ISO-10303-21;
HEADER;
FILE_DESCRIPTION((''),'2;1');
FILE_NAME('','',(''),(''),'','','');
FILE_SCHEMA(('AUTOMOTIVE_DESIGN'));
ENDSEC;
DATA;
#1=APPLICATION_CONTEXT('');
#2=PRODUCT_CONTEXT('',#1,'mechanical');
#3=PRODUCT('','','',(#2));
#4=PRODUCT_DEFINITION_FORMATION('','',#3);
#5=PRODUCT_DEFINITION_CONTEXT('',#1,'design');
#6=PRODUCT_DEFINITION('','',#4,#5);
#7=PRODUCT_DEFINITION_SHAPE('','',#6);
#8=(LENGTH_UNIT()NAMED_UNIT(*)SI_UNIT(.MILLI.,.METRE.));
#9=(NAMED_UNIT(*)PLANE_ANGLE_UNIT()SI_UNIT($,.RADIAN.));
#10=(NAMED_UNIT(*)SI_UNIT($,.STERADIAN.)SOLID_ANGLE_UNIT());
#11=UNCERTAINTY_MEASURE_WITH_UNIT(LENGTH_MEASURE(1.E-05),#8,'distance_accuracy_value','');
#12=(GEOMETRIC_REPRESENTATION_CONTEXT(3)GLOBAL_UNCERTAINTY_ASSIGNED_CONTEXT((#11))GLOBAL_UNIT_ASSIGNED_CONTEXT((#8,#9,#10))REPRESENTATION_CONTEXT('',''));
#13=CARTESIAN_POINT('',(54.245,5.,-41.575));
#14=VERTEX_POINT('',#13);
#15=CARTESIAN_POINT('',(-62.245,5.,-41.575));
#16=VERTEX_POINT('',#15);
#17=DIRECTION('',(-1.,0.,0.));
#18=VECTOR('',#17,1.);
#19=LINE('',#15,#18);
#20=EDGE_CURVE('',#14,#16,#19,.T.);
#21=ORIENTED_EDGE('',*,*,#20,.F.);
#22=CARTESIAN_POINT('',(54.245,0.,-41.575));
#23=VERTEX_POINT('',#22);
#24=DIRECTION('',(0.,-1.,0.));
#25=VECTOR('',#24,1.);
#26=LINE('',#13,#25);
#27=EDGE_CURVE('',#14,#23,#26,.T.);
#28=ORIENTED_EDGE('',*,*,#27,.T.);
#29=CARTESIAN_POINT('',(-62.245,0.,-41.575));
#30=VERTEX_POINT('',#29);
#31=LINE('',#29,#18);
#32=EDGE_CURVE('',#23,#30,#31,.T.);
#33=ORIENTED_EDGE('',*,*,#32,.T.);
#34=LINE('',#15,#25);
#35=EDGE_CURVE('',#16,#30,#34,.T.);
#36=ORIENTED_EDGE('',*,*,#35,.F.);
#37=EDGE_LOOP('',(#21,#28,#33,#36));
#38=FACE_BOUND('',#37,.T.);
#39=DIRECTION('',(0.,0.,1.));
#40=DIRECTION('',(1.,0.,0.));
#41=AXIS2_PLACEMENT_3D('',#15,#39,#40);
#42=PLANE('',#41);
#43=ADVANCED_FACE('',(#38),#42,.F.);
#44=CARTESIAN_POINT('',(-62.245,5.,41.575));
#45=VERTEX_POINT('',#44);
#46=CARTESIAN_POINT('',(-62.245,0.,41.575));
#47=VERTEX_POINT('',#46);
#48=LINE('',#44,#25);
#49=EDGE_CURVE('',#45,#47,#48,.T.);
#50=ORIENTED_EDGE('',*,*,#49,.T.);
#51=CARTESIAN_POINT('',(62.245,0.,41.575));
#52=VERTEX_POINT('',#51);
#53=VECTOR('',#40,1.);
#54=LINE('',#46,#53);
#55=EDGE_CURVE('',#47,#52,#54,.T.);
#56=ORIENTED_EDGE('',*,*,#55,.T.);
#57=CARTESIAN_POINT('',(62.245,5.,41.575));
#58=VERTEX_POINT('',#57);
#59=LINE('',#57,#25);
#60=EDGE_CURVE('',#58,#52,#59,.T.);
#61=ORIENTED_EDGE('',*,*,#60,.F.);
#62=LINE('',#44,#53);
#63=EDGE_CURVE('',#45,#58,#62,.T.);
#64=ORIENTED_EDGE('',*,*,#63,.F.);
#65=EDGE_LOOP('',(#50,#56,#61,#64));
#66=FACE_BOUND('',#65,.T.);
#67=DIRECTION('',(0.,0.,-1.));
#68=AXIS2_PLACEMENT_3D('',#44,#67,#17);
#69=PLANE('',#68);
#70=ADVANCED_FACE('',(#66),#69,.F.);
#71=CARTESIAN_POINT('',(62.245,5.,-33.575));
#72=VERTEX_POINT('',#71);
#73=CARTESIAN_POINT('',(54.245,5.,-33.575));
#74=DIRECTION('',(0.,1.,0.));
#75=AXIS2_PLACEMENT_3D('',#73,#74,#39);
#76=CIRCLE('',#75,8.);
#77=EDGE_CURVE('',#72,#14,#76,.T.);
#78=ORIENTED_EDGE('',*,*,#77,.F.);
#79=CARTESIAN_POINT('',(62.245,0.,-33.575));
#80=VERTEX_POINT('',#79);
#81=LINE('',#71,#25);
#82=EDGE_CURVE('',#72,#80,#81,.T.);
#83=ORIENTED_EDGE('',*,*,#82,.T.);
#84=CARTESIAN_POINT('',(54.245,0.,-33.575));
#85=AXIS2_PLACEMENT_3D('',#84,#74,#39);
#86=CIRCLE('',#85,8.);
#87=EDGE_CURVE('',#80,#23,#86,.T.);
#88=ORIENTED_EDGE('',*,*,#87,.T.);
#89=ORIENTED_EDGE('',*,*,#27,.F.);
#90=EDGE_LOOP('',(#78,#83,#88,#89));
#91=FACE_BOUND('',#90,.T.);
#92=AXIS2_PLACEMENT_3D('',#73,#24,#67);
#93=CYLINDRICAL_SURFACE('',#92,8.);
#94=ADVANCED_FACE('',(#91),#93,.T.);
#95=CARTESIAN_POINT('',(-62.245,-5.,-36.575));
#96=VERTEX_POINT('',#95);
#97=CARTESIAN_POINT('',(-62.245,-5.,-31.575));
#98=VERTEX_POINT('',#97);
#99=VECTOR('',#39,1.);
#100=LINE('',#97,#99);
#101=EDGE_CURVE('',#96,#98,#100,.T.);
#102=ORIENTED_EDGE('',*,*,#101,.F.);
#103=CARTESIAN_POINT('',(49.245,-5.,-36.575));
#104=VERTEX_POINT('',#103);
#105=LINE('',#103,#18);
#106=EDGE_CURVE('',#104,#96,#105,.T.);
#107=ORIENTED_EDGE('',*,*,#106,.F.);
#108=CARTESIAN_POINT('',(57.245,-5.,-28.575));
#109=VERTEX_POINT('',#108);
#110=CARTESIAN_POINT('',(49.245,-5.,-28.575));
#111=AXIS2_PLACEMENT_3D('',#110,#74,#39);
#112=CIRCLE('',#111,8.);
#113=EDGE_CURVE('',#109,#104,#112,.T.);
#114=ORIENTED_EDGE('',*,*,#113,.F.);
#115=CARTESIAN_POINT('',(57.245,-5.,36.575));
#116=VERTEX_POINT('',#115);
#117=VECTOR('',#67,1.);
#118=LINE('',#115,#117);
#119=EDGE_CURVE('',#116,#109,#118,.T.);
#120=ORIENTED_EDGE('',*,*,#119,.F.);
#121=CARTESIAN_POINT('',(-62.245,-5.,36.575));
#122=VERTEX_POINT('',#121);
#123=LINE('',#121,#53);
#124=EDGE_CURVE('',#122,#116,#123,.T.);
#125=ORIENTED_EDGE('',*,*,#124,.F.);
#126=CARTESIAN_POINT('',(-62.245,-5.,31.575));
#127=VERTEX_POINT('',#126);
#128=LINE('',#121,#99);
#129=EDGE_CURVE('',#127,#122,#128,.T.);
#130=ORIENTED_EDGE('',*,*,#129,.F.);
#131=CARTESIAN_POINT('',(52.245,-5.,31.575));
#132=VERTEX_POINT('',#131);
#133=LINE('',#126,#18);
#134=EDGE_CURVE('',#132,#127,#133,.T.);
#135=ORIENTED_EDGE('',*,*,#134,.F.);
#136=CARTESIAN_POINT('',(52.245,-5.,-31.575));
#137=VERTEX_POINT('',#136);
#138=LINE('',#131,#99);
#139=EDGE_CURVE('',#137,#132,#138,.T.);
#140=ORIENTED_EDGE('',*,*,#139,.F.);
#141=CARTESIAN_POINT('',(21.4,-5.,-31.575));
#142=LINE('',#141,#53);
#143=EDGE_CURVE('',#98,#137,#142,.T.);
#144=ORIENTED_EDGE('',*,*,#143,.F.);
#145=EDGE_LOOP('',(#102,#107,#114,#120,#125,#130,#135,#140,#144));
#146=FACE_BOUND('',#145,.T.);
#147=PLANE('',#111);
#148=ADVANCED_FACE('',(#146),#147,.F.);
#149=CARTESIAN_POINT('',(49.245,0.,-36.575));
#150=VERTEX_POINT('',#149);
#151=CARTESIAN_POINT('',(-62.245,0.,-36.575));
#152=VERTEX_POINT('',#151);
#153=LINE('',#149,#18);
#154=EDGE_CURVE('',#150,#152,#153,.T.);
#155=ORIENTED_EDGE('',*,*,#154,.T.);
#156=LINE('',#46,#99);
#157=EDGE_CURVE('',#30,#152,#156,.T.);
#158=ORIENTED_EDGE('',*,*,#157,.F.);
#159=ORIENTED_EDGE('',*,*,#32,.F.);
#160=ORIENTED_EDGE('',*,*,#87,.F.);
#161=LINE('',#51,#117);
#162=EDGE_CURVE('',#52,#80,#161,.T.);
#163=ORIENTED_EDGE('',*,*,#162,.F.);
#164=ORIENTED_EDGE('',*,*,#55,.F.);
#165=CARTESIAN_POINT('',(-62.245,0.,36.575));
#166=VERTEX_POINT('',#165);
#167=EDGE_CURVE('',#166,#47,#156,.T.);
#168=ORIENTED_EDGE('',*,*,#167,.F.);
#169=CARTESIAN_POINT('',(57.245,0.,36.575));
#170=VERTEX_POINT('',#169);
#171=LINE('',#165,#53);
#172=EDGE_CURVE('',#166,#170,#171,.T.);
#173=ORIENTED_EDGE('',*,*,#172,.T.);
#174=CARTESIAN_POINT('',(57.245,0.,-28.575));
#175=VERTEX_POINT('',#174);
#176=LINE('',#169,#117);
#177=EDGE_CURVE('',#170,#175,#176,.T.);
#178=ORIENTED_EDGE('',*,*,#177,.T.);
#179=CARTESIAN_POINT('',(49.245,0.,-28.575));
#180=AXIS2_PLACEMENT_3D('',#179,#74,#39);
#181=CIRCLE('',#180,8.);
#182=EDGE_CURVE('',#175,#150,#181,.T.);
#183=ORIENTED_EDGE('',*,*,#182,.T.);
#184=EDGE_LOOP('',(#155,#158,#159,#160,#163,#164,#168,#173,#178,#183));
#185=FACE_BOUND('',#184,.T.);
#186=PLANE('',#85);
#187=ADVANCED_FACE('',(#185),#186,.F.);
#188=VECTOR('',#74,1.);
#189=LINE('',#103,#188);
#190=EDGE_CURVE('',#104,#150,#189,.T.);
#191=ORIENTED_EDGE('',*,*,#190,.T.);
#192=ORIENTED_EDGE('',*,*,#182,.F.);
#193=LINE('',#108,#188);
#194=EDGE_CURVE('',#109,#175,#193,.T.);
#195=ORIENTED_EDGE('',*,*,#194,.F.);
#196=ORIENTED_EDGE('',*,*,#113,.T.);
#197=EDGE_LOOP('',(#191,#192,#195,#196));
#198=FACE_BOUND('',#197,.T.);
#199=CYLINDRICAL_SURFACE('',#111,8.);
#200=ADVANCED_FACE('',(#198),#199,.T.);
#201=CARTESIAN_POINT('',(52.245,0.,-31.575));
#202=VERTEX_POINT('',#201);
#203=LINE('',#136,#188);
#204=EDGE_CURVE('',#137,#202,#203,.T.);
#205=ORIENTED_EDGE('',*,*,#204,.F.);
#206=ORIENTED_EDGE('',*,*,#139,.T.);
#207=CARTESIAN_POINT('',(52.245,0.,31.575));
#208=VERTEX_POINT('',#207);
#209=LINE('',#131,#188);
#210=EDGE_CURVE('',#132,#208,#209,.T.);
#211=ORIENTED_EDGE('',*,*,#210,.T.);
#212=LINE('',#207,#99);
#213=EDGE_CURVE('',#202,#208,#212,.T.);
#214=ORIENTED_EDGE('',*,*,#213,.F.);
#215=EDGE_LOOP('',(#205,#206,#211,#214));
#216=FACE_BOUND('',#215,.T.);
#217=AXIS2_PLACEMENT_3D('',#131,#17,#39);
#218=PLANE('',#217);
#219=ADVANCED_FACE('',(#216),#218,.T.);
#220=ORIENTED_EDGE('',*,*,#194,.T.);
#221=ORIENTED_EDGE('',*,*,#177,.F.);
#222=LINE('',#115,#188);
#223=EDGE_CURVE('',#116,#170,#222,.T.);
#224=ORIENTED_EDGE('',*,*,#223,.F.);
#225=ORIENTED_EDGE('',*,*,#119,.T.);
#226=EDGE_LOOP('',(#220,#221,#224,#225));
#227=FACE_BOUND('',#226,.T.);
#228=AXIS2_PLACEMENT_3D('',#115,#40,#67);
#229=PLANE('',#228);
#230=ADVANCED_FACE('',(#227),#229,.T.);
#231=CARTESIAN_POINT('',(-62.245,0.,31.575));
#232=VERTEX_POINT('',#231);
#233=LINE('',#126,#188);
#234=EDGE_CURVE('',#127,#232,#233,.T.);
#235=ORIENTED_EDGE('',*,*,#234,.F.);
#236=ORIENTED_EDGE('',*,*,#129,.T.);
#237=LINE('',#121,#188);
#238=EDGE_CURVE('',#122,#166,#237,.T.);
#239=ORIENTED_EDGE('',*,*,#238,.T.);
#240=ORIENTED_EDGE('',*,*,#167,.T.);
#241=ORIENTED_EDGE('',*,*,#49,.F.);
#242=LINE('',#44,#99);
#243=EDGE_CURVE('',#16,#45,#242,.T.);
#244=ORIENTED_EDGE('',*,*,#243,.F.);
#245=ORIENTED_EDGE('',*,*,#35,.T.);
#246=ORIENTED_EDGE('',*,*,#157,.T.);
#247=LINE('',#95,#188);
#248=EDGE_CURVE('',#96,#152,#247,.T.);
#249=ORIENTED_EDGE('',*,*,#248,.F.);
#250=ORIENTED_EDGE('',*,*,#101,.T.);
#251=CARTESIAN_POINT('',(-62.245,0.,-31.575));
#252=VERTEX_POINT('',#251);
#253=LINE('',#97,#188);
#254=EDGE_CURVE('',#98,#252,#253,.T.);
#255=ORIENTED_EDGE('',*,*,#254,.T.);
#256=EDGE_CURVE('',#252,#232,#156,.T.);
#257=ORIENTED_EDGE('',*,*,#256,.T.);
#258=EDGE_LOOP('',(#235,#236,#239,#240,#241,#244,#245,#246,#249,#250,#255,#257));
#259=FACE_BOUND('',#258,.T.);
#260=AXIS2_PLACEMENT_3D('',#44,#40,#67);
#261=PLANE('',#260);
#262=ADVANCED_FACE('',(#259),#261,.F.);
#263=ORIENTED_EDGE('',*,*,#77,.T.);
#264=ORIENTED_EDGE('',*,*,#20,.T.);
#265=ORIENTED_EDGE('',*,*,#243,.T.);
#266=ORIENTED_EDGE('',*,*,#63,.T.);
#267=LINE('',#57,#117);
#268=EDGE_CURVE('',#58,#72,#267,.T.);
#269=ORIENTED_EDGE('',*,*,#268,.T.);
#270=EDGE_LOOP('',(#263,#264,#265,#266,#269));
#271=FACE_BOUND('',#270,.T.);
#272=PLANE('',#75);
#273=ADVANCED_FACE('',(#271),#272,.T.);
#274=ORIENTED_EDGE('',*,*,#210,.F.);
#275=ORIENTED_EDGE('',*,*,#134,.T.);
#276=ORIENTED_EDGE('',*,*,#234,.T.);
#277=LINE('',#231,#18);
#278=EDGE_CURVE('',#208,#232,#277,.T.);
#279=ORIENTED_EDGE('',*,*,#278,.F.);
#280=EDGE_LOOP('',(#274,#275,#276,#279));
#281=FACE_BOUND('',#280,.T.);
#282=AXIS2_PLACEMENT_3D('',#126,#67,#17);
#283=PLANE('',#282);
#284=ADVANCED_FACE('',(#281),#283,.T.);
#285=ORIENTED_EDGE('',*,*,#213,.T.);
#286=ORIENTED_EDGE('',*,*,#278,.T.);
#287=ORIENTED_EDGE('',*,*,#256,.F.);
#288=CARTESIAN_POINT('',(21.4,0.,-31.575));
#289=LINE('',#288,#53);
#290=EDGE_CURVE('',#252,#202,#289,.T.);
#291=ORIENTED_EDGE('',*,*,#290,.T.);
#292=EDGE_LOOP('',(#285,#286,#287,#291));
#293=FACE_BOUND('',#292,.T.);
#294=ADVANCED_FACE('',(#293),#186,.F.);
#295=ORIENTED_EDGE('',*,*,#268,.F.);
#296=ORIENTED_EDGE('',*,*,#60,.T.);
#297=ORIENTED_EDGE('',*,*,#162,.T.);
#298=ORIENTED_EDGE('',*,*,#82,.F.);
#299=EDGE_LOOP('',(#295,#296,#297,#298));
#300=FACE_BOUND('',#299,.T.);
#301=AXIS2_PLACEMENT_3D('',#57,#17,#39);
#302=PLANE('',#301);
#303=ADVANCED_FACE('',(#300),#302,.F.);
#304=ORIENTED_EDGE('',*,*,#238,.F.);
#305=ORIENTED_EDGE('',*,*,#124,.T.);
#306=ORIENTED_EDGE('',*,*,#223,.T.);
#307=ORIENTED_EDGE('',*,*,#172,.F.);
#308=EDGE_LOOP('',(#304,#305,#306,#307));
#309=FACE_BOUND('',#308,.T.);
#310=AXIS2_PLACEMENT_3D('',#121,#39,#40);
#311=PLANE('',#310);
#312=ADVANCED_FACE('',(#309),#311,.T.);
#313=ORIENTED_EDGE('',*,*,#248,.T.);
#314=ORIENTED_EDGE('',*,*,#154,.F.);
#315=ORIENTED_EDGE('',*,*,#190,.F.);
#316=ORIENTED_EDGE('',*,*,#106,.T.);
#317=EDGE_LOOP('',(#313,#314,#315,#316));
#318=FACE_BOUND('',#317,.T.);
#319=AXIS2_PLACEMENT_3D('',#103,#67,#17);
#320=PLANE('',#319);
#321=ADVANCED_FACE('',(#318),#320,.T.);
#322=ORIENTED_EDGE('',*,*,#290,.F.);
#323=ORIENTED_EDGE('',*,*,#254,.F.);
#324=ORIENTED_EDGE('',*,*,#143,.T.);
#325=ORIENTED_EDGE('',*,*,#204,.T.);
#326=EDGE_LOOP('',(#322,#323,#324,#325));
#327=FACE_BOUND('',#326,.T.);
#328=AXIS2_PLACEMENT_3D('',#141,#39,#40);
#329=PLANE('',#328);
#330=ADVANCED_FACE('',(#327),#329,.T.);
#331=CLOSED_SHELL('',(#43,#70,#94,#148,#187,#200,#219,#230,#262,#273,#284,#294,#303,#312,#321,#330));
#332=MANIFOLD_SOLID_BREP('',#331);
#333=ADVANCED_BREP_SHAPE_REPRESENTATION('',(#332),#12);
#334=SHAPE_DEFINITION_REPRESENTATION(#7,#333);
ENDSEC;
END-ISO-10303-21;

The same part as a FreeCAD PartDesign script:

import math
import FreeCAD as App
import Part
import Sketcher
Q = App.Units.Quantity

doc = App.newDocument("Part")
body = doc.addObject("PartDesign::Body", "Body")

sketch1 = body.newObject("Sketcher::SketchObject", "Sketch")
sketch1.AttachmentSupport = (doc.getObject("XZ_Plane"), [""])
sketch1.MapMode = "FlatFace"
sketch1.addGeometry(Part.LineSegment(App.Vector(-62, 42, 0), App.Vector(62, 42, 0)), False)
sketch1.addGeometry(Part.LineSegment(App.Vector(62, 42, 0), App.Vector(62, -34, 0)), False)
sketch1.addGeometry(Part.ArcOfCircle(Part.Circle(App.Vector(54, -34, 0), App.Vector(0, 0, 1), 8), math.radians(-90), math.radians(0)), False)
sketch1.addGeometry(Part.LineSegment(App.Vector(54, -42, 0), App.Vector(-62, -42, 0)), False)
sketch1.addGeometry(Part.LineSegment(App.Vector(-62, -42, 0), App.Vector(-62, 42, 0)), False)
sketch1.addConstraint(Sketcher.Constraint("Coincident", 0, 2, 1, 1))
sketch1.addConstraint(Sketcher.Constraint("Tangent", 1, 2, 2, 2))
sketch1.addConstraint(Sketcher.Constraint("Tangent", 2, 1, 3, 1))
sketch1.addConstraint(Sketcher.Constraint("Coincident", 3, 2, 4, 1))
sketch1.addConstraint(Sketcher.Constraint("Coincident", 4, 2, 0, 1))
sketch1.addConstraint(Sketcher.Constraint("Horizontal", 0))
sketch1.addConstraint(Sketcher.Constraint("Vertical", 1))
sketch1.addConstraint(Sketcher.Constraint("Horizontal", 3))
sketch1.addConstraint(Sketcher.Constraint("Vertical", 4))
sketch1.addConstraint(Sketcher.Constraint("Symmetric", 0, 2, 3, 2, -1, 1))
sketch1.addConstraint(Sketcher.Constraint("Radius", 2, Q("8 mm")))
sketch1.addConstraint(Sketcher.Constraint("DistanceX", 0, 1, 0, 2, Q("124.49 mm")))
sketch1.addConstraint(Sketcher.Constraint("DistanceY", 1, 2, 1, 1, Q("75.15 mm")))
pad1 = body.newObject("PartDesign::Pad", "Pad")
pad1.Profile = sketch1
pad1.Length = 5
pad1.Reversed = True

sketch2 = body.newObject("Sketcher::SketchObject", "Sketch001")
sketch2.AttachmentSupport = (doc.getObject("XZ_Plane"), [""])
sketch2.MapMode = "FlatFace"
sketch2.addGeometry(Part.LineSegment(App.Vector(52, -32, 0), App.Vector(52, 32, 0)), False)
sketch2.addGeometry(Part.LineSegment(App.Vector(52, 32, 0), App.Vector(-62, 32, 0)), False)
sketch2.addGeometry(Part.LineSegment(App.Vector(-62, 32, 0), App.Vector(-62, 37, 0)), False)
sketch2.addGeometry(Part.LineSegment(App.Vector(-62, 37, 0), App.Vector(57, 37, 0)), False)
sketch2.addGeometry(Part.LineSegment(App.Vector(57, 37, 0), App.Vector(57, -29, 0)), False)
sketch2.addGeometry(Part.ArcOfCircle(Part.Circle(App.Vector(49, -29, 0), App.Vector(0, 0, 1), 8), math.radians(-90), math.radians(0)), False)
sketch2.addGeometry(Part.LineSegment(App.Vector(49, -37, 0), App.Vector(-62, -37, 0)), False)
sketch2.addGeometry(Part.LineSegment(App.Vector(-62, -37, 0), App.Vector(-62, -32, 0)), False)
sketch2.addGeometry(Part.LineSegment(App.Vector(-62, -32, 0), App.Vector(52, -32, 0)), False)
sketch2.addConstraint(Sketcher.Constraint("Coincident", 0, 2, 1, 1))
sketch2.addConstraint(Sketcher.Constraint("Coincident", 1, 2, 2, 1))
sketch2.addConstraint(Sketcher.Constraint("Coincident", 2, 2, 3, 1))
sketch2.addConstraint(Sketcher.Constraint("Coincident", 3, 2, 4, 1))
sketch2.addConstraint(Sketcher.Constraint("Tangent", 4, 2, 5, 2))
sketch2.addConstraint(Sketcher.Constraint("Tangent", 5, 1, 6, 1))
sketch2.addConstraint(Sketcher.Constraint("Coincident", 6, 2, 7, 1))
sketch2.addConstraint(Sketcher.Constraint("Coincident", 7, 2, 8, 1))
sketch2.addConstraint(Sketcher.Constraint("Coincident", 8, 2, 0, 1))
sketch2.addConstraint(Sketcher.Constraint("Vertical", 0))
sketch2.addConstraint(Sketcher.Constraint("Horizontal", 1))
sketch2.addConstraint(Sketcher.Constraint("Vertical", 2))
sketch2.addConstraint(Sketcher.Constraint("Horizontal", 3))
sketch2.addConstraint(Sketcher.Constraint("Vertical", 4))
sketch2.addConstraint(Sketcher.Constraint("Horizontal", 6))
sketch2.addConstraint(Sketcher.Constraint("Vertical", 7))
sketch2.addConstraint(Sketcher.Constraint("Horizontal", 8))
sketch2.addConstraint(Sketcher.Constraint("Symmetric", 2, 2, 6, 2, -1))
sketch2.addConstraint(Sketcher.Constraint("Equal", 2, 7))
sketch2.addConstraint(Sketcher.Constraint("Radius", 5, Q("8 mm")))
sketch2.addConstraint(Sketcher.Constraint("DistanceY", 2, 1, 2, 2, Q("5 mm")))
sketch2.addConstraint(Sketcher.Constraint("DistanceX", 5, 3, 0, 2, Q("3 mm")))
sketch2.addConstraint(Sketcher.Constraint("DistanceX", 1, 2, 1, 1, Q("114.49 mm")))
sketch2.addConstraint(Sketcher.Constraint("DistanceY", 0, 1, 0, 2, Q("63.15 mm")))
sketch2.addConstraint(Sketcher.Constraint("DistanceX", -1, 1, 5, 3, Q("49.245 mm")))
pad2 = body.newObject("PartDesign::Pad", "Pad001")
pad2.Profile = sketch2
pad2.Length = 5

doc.recompute()
